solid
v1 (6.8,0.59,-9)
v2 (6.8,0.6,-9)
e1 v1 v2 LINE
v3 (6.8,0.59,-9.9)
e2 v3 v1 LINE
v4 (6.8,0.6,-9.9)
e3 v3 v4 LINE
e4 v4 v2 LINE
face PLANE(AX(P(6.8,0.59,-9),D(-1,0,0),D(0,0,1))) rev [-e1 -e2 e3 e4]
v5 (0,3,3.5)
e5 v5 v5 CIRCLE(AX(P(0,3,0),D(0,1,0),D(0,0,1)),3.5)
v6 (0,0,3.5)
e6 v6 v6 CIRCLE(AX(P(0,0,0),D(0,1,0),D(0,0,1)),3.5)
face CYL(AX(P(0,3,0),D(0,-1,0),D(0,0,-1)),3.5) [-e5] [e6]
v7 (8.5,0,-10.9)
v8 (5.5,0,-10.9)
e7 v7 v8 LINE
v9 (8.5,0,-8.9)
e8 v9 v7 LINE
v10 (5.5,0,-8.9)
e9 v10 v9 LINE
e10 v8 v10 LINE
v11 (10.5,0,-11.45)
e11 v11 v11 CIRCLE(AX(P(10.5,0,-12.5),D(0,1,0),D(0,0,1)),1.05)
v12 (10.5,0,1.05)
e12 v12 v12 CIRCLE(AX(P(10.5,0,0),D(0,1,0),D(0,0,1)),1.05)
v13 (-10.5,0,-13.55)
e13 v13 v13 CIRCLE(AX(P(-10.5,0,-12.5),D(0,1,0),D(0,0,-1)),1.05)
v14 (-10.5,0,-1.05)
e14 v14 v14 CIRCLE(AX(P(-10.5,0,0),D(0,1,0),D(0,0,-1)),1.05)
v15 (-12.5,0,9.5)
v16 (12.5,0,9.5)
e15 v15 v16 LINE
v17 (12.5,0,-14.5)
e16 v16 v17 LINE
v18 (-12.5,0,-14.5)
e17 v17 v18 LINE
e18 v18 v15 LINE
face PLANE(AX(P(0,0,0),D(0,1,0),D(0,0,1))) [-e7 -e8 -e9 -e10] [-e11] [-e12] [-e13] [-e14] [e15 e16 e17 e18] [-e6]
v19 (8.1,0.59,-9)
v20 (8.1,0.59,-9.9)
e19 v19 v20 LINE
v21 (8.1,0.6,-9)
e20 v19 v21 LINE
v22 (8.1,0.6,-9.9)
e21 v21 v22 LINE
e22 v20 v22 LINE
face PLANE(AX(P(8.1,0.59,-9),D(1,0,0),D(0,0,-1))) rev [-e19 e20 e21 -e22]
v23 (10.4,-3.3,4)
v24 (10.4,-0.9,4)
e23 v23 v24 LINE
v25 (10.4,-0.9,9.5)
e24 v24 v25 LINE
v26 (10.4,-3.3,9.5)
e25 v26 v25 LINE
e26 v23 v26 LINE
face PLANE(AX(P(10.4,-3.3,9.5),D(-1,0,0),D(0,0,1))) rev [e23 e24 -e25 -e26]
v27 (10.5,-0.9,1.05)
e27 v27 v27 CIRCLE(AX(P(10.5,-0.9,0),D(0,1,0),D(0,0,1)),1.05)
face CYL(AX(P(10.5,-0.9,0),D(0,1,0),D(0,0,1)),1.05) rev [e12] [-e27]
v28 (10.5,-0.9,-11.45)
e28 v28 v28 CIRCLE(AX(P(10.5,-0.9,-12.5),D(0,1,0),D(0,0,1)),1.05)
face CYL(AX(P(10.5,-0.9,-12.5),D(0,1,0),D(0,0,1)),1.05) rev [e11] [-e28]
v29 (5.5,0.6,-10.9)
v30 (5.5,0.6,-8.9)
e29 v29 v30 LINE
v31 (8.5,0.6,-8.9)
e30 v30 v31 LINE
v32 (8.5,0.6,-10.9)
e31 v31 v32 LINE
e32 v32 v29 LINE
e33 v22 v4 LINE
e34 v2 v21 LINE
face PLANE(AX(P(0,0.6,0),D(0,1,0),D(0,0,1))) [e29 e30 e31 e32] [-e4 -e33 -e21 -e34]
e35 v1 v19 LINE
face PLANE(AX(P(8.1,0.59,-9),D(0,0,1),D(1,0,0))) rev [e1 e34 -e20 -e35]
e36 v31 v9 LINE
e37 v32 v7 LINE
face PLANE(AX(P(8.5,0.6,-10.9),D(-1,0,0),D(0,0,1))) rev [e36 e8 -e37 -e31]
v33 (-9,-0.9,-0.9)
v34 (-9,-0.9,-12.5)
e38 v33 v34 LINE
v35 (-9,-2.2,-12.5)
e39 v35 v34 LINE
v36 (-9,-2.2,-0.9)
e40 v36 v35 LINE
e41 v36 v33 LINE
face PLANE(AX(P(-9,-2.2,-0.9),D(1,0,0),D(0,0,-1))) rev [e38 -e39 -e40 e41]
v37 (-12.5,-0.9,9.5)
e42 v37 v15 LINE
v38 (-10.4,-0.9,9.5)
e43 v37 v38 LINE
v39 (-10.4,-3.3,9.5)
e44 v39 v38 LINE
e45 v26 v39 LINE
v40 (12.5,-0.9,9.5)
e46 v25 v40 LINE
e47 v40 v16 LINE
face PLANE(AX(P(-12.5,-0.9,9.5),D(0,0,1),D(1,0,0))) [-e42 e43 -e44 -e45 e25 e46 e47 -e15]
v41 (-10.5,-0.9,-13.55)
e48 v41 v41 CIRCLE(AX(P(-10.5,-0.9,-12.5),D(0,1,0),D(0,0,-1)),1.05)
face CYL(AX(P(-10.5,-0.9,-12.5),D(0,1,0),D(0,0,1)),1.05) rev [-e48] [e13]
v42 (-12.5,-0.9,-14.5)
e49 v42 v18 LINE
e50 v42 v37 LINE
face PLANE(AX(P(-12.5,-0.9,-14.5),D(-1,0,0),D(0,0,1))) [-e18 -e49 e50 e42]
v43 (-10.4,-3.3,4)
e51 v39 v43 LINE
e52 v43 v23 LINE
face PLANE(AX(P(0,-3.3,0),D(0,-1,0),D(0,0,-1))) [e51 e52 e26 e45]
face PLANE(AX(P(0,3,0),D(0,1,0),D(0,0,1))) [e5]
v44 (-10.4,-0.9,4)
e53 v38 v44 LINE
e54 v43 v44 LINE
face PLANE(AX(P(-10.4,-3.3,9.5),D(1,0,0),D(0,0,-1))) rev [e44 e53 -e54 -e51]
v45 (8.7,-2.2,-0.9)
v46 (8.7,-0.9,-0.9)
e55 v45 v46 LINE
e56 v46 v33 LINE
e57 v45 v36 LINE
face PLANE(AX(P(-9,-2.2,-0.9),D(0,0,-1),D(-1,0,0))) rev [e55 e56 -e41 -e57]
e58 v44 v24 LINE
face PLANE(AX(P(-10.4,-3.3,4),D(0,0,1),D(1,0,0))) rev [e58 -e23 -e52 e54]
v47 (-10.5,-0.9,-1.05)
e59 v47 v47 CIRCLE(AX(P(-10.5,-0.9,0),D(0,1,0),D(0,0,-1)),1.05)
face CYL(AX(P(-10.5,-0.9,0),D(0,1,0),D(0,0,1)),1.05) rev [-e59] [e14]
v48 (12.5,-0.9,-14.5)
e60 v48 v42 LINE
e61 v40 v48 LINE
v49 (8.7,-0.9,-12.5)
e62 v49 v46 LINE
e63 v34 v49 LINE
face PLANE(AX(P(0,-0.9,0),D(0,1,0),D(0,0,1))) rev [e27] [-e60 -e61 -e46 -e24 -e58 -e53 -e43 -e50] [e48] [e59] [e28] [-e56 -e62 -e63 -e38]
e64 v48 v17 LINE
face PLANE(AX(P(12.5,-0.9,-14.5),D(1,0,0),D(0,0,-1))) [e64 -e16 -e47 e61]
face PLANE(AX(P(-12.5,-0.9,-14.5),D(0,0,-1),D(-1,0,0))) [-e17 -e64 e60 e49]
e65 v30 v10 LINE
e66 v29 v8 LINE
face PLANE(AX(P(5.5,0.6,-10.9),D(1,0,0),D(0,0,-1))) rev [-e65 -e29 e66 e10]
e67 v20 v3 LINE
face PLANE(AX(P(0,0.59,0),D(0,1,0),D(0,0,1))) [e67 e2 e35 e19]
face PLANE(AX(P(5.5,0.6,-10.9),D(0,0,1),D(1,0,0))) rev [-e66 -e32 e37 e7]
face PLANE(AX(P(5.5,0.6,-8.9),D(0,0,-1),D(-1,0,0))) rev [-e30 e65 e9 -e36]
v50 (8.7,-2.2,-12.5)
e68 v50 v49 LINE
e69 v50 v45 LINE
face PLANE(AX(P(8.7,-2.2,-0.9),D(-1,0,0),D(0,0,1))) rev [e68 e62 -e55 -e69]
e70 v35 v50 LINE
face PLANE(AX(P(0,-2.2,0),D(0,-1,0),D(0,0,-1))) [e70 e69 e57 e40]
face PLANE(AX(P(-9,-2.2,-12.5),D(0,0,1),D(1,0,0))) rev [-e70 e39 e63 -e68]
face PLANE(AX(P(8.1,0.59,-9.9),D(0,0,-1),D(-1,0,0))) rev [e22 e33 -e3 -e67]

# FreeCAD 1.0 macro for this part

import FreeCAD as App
import Part
import Sketcher

V = App.Vector


def add_polygon(sketch, points):
    """Adds a closed chain of lines whose ends are joined by coincident constraints."""
    first, n = sketch.GeometryCount, len(points)
    for a, b in zip(points, points[1:] + points[:1]):
        sketch.addGeometry(Part.LineSegment(App.Vector(*a, 0), App.Vector(*b, 0)), False)
    for i in range(n):
        sketch.addConstraint(Sketcher.Constraint("Coincident", first + i, 2, first + (i + 1) % n, 1))

doc = App.newDocument("Part")
body = doc.addObject("PartDesign::Body", "Body")

# Sketch on XZ plane
sketch1 = body.newObject("Sketcher::SketchObject", "Sketch")
sketch1.AttachmentSupport = (doc.getObject("XZ_Plane"), [""])
sketch1.MapMode = "FlatFace"
add_polygon(sketch1, [(-12.5, -14.5), (-12.5, 9.5), (12.5, 9.5), (12.5, -14.5)])  # lines 0-3
sketch1.addConstraint(Sketcher.Constraint("Vertical", 0))
sketch1.addConstraint(Sketcher.Constraint("Horizontal", 1))
sketch1.addConstraint(Sketcher.Constraint("Vertical", 2))
sketch1.addConstraint(Sketcher.Constraint("Horizontal", 3))
sketch1.addConstraint(Sketcher.Constraint("DistanceX", 1, 1, 1, 2, 25.0))
sketch1.addConstraint(Sketcher.Constraint("DistanceY", 0, 1, 0, 2, 24.0))
sketch1.addConstraint(Sketcher.Constraint("DistanceX", 0, 2, -1, 1, 12.5))
sketch1.addConstraint(Sketcher.Constraint("DistanceY", -1, 1, 0, 2, 9.5))
pad1 = body.newObject("PartDesign::Pad", "Pad")
pad1.Profile = sketch1
pad1.Length = 0.9

# Sketch on XZ plane
sketch2 = body.newObject("Sketcher::SketchObject", "Sketch001")
sketch2.AttachmentSupport = (doc.getObject("XZ_Plane"), [""])
sketch2.MapMode = "FlatFace"
sketch2.addGeometry(Part.Circle(V(10.5, -12.5, 0), V(0, 0, 1), 1.05), False)
sketch2.addGeometry(Part.Circle(V(10.5, 0, 0), V(0, 0, 1), 1.05), False)
sketch2.addGeometry(Part.Circle(V(-10.5, 0, 0), V(0, 0, 1), 1.05), False)
sketch2.addGeometry(Part.Circle(V(-10.5, -12.5, 0), V(0, 0, 1), 1.05), False)
sketch2.addConstraint(Sketcher.Constraint("Equal", 0, 1))
sketch2.addConstraint(Sketcher.Constraint("Equal", 1, 2))
sketch2.addConstraint(Sketcher.Constraint("Equal", 2, 3))
sketch2.addConstraint(Sketcher.Constraint("Symmetric", 1, 3, 2, 3, -1, 1))
sketch2.addConstraint(Sketcher.Constraint("Symmetric", 0, 3, 3, 3, -2))
sketch2.addConstraint(Sketcher.Constraint("PointOnObject", 1, 3, -1))
sketch2.addConstraint(Sketcher.Constraint("Vertical", 0, 3, 1, 3))
sketch2.addConstraint(Sketcher.Constraint("Diameter", 0, 2.1))
sketch2.addConstraint(Sketcher.Constraint("DistanceX", 2, 3, 1, 3, 21.0))
sketch2.addConstraint(Sketcher.Constraint("DistanceY", 0, 3, -1, 1, 12.5))
pocket1 = body.newObject("PartDesign::Pocket", "Pocket")
pocket1.Profile = sketch2
pocket1.Type = "ThroughAll"
pocket1.Reversed = True

# Sketch on XZ plane
sketch3 = body.newObject("Sketcher::SketchObject", "Sketch002")
sketch3.AttachmentSupport = (doc.getObject("XZ_Plane"), [""])
sketch3.MapMode = "FlatFace"
sketch3.AttachmentOffset = App.Placement(V(0, 0, 0.9), App.Rotation())
add_polygon(sketch3, [(-10.4, 9.5), (-10.4, 4), (10.4, 4), (10.4, 9.5)])  # lines 0-3
sketch3.addConstraint(Sketcher.Constraint("Vertical", 0))
sketch3.addConstraint(Sketcher.Constraint("Horizontal", 1))
sketch3.addConstraint(Sketcher.Constraint("Vertical", 2))
sketch3.addConstraint(Sketcher.Constraint("Horizontal", 3))
sketch3.addConstraint(Sketcher.Constraint("DistanceX", 1, 1, 1, 2, 20.8))
sketch3.addConstraint(Sketcher.Constraint("DistanceY", 0, 2, 0, 1, 5.5))
sketch3.addConstraint(Sketcher.Constraint("DistanceY", -1, 1, 0, 2, 4.0))
sketch3.addConstraint(Sketcher.Constraint("DistanceX", 0, 2, -1, 1, 10.4))
pad2 = body.newObject("PartDesign::Pad", "Pad001")
pad2.Profile = sketch3
pad2.Length = 2.4

# Sketch on XZ plane
sketch4 = body.newObject("Sketcher::SketchObject", "Sketch003")
sketch4.AttachmentSupport = (doc.getObject("XZ_Plane"), [""])
sketch4.MapMode = "FlatFace"
sketch4.AttachmentOffset = App.Placement(V(0, 0, 0.9), App.Rotation())
add_polygon(sketch4, [(-9, -0.9), (-9, -12.5), (8.7, -12.5), (8.7, -0.9)])  # lines 0-3
sketch4.addConstraint(Sketcher.Constraint("Vertical", 0))
sketch4.addConstraint(Sketcher.Constraint("Horizontal", 1))
sketch4.addConstraint(Sketcher.Constraint("Vertical", 2))
sketch4.addConstraint(Sketcher.Constraint("Horizontal", 3))
sketch4.addConstraint(Sketcher.Constraint("DistanceX", 1, 1, 1, 2, 17.7))
sketch4.addConstraint(Sketcher.Constraint("DistanceY", 0, 2, 0, 1, 11.6))
sketch4.addConstraint(Sketcher.Constraint("DistanceX", 0, 2, -1, 1, 9.0))
sketch4.addConstraint(Sketcher.Constraint("DistanceY", 0, 2, -1, 1, 12.5))
pad3 = body.newObject("PartDesign::Pad", "Pad002")
pad3.Profile = sketch4
pad3.Length = 1.3

# Sketch on XZ plane
sketch5 = body.newObject("Sketcher::SketchObject", "Sketch004")
sketch5.AttachmentSupport = (doc.getObject("XZ_Plane"), [""])
sketch5.MapMode = "FlatFace"
add_polygon(sketch5, [(5.5, -10.9), (5.5, -8.9), (8.5, -8.9), (8.5, -10.9)])  # lines 0-3
sketch5.addConstraint(Sketcher.Constraint("Vertical", 0))
sketch5.addConstraint(Sketcher.Constraint("Horizontal", 1))
sketch5.addConstraint(Sketcher.Constraint("Vertical", 2))
sketch5.addConstraint(Sketcher.Constraint("Horizontal", 3))
sketch5.addConstraint(Sketcher.Constraint("DistanceX", 1, 1, 1, 2, 3.0))
sketch5.addConstraint(Sketcher.Constraint("DistanceY", 0, 1, 0, 2, 2.0))
sketch5.addConstraint(Sketcher.Constraint("DistanceX", -1, 1, 0, 2, 5.5))
sketch5.addConstraint(Sketcher.Constraint("DistanceY", 0, 2, -1, 1, 8.9))
pad4 = body.newObject("PartDesign::Pad", "Pad003")
pad4.Profile = sketch5
pad4.Length = 0.6
pad4.Reversed = True

# Sketch on XZ plane
sketch6 = body.newObject("Sketcher::SketchObject", "Sketch005")
sketch6.AttachmentSupport = (doc.getObject("XZ_Plane"), [""])
sketch6.MapMode = "FlatFace"
sketch6.AttachmentOffset = App.Placement(V(0, 0, -0.6), App.Rotation())
add_polygon(sketch6, [(6.8, -9.9), (6.8, -9), (8.1, -9), (8.1, -9.9)])  # lines 0-3
sketch6.addConstraint(Sketcher.Constraint("Vertical", 0))
sketch6.addConstraint(Sketcher.Constraint("Horizontal", 1))
sketch6.addConstraint(Sketcher.Constraint("Vertical", 2))
sketch6.addConstraint(Sketcher.Constraint("Horizontal", 3))
sketch6.addConstraint(Sketcher.Constraint("DistanceX", 1, 1, 1, 2, 1.3))
sketch6.addConstraint(Sketcher.Constraint("DistanceY", 0, 1, 0, 2, 0.9))
sketch6.addConstraint(Sketcher.Constraint("DistanceY", 0, 2, -1, 1, 9.0))
sketch6.addConstraint(Sketcher.Constraint("DistanceX", -1, 1, 0, 2, 6.8))
pocket2 = body.newObject("PartDesign::Pocket", "Pocket001")
pocket2.Profile = sketch6
pocket2.Length = 0.01
pocket2.Reversed = True

# Sketch on XZ plane
sketch7 = body.newObject("Sketcher::SketchObject", "Sketch006")
sketch7.AttachmentSupport = (doc.getObject("XZ_Plane"), [""])
sketch7.MapMode = "FlatFace"
sketch7.addGeometry(Part.Circle(V(0, 0, 0), V(0, 0, 1), 3.5), False)
sketch7.addConstraint(Sketcher.Constraint("Coincident", 0, 3, -1, 1))
sketch7.addConstraint(Sketcher.Constraint("Diameter", 0, 7.0))
pad5 = body.newObject("PartDesign::Pad", "Pad004")
pad5.Profile = sketch7
pad5.Length = 3
pad5.Reversed = True

doc.recompute()
